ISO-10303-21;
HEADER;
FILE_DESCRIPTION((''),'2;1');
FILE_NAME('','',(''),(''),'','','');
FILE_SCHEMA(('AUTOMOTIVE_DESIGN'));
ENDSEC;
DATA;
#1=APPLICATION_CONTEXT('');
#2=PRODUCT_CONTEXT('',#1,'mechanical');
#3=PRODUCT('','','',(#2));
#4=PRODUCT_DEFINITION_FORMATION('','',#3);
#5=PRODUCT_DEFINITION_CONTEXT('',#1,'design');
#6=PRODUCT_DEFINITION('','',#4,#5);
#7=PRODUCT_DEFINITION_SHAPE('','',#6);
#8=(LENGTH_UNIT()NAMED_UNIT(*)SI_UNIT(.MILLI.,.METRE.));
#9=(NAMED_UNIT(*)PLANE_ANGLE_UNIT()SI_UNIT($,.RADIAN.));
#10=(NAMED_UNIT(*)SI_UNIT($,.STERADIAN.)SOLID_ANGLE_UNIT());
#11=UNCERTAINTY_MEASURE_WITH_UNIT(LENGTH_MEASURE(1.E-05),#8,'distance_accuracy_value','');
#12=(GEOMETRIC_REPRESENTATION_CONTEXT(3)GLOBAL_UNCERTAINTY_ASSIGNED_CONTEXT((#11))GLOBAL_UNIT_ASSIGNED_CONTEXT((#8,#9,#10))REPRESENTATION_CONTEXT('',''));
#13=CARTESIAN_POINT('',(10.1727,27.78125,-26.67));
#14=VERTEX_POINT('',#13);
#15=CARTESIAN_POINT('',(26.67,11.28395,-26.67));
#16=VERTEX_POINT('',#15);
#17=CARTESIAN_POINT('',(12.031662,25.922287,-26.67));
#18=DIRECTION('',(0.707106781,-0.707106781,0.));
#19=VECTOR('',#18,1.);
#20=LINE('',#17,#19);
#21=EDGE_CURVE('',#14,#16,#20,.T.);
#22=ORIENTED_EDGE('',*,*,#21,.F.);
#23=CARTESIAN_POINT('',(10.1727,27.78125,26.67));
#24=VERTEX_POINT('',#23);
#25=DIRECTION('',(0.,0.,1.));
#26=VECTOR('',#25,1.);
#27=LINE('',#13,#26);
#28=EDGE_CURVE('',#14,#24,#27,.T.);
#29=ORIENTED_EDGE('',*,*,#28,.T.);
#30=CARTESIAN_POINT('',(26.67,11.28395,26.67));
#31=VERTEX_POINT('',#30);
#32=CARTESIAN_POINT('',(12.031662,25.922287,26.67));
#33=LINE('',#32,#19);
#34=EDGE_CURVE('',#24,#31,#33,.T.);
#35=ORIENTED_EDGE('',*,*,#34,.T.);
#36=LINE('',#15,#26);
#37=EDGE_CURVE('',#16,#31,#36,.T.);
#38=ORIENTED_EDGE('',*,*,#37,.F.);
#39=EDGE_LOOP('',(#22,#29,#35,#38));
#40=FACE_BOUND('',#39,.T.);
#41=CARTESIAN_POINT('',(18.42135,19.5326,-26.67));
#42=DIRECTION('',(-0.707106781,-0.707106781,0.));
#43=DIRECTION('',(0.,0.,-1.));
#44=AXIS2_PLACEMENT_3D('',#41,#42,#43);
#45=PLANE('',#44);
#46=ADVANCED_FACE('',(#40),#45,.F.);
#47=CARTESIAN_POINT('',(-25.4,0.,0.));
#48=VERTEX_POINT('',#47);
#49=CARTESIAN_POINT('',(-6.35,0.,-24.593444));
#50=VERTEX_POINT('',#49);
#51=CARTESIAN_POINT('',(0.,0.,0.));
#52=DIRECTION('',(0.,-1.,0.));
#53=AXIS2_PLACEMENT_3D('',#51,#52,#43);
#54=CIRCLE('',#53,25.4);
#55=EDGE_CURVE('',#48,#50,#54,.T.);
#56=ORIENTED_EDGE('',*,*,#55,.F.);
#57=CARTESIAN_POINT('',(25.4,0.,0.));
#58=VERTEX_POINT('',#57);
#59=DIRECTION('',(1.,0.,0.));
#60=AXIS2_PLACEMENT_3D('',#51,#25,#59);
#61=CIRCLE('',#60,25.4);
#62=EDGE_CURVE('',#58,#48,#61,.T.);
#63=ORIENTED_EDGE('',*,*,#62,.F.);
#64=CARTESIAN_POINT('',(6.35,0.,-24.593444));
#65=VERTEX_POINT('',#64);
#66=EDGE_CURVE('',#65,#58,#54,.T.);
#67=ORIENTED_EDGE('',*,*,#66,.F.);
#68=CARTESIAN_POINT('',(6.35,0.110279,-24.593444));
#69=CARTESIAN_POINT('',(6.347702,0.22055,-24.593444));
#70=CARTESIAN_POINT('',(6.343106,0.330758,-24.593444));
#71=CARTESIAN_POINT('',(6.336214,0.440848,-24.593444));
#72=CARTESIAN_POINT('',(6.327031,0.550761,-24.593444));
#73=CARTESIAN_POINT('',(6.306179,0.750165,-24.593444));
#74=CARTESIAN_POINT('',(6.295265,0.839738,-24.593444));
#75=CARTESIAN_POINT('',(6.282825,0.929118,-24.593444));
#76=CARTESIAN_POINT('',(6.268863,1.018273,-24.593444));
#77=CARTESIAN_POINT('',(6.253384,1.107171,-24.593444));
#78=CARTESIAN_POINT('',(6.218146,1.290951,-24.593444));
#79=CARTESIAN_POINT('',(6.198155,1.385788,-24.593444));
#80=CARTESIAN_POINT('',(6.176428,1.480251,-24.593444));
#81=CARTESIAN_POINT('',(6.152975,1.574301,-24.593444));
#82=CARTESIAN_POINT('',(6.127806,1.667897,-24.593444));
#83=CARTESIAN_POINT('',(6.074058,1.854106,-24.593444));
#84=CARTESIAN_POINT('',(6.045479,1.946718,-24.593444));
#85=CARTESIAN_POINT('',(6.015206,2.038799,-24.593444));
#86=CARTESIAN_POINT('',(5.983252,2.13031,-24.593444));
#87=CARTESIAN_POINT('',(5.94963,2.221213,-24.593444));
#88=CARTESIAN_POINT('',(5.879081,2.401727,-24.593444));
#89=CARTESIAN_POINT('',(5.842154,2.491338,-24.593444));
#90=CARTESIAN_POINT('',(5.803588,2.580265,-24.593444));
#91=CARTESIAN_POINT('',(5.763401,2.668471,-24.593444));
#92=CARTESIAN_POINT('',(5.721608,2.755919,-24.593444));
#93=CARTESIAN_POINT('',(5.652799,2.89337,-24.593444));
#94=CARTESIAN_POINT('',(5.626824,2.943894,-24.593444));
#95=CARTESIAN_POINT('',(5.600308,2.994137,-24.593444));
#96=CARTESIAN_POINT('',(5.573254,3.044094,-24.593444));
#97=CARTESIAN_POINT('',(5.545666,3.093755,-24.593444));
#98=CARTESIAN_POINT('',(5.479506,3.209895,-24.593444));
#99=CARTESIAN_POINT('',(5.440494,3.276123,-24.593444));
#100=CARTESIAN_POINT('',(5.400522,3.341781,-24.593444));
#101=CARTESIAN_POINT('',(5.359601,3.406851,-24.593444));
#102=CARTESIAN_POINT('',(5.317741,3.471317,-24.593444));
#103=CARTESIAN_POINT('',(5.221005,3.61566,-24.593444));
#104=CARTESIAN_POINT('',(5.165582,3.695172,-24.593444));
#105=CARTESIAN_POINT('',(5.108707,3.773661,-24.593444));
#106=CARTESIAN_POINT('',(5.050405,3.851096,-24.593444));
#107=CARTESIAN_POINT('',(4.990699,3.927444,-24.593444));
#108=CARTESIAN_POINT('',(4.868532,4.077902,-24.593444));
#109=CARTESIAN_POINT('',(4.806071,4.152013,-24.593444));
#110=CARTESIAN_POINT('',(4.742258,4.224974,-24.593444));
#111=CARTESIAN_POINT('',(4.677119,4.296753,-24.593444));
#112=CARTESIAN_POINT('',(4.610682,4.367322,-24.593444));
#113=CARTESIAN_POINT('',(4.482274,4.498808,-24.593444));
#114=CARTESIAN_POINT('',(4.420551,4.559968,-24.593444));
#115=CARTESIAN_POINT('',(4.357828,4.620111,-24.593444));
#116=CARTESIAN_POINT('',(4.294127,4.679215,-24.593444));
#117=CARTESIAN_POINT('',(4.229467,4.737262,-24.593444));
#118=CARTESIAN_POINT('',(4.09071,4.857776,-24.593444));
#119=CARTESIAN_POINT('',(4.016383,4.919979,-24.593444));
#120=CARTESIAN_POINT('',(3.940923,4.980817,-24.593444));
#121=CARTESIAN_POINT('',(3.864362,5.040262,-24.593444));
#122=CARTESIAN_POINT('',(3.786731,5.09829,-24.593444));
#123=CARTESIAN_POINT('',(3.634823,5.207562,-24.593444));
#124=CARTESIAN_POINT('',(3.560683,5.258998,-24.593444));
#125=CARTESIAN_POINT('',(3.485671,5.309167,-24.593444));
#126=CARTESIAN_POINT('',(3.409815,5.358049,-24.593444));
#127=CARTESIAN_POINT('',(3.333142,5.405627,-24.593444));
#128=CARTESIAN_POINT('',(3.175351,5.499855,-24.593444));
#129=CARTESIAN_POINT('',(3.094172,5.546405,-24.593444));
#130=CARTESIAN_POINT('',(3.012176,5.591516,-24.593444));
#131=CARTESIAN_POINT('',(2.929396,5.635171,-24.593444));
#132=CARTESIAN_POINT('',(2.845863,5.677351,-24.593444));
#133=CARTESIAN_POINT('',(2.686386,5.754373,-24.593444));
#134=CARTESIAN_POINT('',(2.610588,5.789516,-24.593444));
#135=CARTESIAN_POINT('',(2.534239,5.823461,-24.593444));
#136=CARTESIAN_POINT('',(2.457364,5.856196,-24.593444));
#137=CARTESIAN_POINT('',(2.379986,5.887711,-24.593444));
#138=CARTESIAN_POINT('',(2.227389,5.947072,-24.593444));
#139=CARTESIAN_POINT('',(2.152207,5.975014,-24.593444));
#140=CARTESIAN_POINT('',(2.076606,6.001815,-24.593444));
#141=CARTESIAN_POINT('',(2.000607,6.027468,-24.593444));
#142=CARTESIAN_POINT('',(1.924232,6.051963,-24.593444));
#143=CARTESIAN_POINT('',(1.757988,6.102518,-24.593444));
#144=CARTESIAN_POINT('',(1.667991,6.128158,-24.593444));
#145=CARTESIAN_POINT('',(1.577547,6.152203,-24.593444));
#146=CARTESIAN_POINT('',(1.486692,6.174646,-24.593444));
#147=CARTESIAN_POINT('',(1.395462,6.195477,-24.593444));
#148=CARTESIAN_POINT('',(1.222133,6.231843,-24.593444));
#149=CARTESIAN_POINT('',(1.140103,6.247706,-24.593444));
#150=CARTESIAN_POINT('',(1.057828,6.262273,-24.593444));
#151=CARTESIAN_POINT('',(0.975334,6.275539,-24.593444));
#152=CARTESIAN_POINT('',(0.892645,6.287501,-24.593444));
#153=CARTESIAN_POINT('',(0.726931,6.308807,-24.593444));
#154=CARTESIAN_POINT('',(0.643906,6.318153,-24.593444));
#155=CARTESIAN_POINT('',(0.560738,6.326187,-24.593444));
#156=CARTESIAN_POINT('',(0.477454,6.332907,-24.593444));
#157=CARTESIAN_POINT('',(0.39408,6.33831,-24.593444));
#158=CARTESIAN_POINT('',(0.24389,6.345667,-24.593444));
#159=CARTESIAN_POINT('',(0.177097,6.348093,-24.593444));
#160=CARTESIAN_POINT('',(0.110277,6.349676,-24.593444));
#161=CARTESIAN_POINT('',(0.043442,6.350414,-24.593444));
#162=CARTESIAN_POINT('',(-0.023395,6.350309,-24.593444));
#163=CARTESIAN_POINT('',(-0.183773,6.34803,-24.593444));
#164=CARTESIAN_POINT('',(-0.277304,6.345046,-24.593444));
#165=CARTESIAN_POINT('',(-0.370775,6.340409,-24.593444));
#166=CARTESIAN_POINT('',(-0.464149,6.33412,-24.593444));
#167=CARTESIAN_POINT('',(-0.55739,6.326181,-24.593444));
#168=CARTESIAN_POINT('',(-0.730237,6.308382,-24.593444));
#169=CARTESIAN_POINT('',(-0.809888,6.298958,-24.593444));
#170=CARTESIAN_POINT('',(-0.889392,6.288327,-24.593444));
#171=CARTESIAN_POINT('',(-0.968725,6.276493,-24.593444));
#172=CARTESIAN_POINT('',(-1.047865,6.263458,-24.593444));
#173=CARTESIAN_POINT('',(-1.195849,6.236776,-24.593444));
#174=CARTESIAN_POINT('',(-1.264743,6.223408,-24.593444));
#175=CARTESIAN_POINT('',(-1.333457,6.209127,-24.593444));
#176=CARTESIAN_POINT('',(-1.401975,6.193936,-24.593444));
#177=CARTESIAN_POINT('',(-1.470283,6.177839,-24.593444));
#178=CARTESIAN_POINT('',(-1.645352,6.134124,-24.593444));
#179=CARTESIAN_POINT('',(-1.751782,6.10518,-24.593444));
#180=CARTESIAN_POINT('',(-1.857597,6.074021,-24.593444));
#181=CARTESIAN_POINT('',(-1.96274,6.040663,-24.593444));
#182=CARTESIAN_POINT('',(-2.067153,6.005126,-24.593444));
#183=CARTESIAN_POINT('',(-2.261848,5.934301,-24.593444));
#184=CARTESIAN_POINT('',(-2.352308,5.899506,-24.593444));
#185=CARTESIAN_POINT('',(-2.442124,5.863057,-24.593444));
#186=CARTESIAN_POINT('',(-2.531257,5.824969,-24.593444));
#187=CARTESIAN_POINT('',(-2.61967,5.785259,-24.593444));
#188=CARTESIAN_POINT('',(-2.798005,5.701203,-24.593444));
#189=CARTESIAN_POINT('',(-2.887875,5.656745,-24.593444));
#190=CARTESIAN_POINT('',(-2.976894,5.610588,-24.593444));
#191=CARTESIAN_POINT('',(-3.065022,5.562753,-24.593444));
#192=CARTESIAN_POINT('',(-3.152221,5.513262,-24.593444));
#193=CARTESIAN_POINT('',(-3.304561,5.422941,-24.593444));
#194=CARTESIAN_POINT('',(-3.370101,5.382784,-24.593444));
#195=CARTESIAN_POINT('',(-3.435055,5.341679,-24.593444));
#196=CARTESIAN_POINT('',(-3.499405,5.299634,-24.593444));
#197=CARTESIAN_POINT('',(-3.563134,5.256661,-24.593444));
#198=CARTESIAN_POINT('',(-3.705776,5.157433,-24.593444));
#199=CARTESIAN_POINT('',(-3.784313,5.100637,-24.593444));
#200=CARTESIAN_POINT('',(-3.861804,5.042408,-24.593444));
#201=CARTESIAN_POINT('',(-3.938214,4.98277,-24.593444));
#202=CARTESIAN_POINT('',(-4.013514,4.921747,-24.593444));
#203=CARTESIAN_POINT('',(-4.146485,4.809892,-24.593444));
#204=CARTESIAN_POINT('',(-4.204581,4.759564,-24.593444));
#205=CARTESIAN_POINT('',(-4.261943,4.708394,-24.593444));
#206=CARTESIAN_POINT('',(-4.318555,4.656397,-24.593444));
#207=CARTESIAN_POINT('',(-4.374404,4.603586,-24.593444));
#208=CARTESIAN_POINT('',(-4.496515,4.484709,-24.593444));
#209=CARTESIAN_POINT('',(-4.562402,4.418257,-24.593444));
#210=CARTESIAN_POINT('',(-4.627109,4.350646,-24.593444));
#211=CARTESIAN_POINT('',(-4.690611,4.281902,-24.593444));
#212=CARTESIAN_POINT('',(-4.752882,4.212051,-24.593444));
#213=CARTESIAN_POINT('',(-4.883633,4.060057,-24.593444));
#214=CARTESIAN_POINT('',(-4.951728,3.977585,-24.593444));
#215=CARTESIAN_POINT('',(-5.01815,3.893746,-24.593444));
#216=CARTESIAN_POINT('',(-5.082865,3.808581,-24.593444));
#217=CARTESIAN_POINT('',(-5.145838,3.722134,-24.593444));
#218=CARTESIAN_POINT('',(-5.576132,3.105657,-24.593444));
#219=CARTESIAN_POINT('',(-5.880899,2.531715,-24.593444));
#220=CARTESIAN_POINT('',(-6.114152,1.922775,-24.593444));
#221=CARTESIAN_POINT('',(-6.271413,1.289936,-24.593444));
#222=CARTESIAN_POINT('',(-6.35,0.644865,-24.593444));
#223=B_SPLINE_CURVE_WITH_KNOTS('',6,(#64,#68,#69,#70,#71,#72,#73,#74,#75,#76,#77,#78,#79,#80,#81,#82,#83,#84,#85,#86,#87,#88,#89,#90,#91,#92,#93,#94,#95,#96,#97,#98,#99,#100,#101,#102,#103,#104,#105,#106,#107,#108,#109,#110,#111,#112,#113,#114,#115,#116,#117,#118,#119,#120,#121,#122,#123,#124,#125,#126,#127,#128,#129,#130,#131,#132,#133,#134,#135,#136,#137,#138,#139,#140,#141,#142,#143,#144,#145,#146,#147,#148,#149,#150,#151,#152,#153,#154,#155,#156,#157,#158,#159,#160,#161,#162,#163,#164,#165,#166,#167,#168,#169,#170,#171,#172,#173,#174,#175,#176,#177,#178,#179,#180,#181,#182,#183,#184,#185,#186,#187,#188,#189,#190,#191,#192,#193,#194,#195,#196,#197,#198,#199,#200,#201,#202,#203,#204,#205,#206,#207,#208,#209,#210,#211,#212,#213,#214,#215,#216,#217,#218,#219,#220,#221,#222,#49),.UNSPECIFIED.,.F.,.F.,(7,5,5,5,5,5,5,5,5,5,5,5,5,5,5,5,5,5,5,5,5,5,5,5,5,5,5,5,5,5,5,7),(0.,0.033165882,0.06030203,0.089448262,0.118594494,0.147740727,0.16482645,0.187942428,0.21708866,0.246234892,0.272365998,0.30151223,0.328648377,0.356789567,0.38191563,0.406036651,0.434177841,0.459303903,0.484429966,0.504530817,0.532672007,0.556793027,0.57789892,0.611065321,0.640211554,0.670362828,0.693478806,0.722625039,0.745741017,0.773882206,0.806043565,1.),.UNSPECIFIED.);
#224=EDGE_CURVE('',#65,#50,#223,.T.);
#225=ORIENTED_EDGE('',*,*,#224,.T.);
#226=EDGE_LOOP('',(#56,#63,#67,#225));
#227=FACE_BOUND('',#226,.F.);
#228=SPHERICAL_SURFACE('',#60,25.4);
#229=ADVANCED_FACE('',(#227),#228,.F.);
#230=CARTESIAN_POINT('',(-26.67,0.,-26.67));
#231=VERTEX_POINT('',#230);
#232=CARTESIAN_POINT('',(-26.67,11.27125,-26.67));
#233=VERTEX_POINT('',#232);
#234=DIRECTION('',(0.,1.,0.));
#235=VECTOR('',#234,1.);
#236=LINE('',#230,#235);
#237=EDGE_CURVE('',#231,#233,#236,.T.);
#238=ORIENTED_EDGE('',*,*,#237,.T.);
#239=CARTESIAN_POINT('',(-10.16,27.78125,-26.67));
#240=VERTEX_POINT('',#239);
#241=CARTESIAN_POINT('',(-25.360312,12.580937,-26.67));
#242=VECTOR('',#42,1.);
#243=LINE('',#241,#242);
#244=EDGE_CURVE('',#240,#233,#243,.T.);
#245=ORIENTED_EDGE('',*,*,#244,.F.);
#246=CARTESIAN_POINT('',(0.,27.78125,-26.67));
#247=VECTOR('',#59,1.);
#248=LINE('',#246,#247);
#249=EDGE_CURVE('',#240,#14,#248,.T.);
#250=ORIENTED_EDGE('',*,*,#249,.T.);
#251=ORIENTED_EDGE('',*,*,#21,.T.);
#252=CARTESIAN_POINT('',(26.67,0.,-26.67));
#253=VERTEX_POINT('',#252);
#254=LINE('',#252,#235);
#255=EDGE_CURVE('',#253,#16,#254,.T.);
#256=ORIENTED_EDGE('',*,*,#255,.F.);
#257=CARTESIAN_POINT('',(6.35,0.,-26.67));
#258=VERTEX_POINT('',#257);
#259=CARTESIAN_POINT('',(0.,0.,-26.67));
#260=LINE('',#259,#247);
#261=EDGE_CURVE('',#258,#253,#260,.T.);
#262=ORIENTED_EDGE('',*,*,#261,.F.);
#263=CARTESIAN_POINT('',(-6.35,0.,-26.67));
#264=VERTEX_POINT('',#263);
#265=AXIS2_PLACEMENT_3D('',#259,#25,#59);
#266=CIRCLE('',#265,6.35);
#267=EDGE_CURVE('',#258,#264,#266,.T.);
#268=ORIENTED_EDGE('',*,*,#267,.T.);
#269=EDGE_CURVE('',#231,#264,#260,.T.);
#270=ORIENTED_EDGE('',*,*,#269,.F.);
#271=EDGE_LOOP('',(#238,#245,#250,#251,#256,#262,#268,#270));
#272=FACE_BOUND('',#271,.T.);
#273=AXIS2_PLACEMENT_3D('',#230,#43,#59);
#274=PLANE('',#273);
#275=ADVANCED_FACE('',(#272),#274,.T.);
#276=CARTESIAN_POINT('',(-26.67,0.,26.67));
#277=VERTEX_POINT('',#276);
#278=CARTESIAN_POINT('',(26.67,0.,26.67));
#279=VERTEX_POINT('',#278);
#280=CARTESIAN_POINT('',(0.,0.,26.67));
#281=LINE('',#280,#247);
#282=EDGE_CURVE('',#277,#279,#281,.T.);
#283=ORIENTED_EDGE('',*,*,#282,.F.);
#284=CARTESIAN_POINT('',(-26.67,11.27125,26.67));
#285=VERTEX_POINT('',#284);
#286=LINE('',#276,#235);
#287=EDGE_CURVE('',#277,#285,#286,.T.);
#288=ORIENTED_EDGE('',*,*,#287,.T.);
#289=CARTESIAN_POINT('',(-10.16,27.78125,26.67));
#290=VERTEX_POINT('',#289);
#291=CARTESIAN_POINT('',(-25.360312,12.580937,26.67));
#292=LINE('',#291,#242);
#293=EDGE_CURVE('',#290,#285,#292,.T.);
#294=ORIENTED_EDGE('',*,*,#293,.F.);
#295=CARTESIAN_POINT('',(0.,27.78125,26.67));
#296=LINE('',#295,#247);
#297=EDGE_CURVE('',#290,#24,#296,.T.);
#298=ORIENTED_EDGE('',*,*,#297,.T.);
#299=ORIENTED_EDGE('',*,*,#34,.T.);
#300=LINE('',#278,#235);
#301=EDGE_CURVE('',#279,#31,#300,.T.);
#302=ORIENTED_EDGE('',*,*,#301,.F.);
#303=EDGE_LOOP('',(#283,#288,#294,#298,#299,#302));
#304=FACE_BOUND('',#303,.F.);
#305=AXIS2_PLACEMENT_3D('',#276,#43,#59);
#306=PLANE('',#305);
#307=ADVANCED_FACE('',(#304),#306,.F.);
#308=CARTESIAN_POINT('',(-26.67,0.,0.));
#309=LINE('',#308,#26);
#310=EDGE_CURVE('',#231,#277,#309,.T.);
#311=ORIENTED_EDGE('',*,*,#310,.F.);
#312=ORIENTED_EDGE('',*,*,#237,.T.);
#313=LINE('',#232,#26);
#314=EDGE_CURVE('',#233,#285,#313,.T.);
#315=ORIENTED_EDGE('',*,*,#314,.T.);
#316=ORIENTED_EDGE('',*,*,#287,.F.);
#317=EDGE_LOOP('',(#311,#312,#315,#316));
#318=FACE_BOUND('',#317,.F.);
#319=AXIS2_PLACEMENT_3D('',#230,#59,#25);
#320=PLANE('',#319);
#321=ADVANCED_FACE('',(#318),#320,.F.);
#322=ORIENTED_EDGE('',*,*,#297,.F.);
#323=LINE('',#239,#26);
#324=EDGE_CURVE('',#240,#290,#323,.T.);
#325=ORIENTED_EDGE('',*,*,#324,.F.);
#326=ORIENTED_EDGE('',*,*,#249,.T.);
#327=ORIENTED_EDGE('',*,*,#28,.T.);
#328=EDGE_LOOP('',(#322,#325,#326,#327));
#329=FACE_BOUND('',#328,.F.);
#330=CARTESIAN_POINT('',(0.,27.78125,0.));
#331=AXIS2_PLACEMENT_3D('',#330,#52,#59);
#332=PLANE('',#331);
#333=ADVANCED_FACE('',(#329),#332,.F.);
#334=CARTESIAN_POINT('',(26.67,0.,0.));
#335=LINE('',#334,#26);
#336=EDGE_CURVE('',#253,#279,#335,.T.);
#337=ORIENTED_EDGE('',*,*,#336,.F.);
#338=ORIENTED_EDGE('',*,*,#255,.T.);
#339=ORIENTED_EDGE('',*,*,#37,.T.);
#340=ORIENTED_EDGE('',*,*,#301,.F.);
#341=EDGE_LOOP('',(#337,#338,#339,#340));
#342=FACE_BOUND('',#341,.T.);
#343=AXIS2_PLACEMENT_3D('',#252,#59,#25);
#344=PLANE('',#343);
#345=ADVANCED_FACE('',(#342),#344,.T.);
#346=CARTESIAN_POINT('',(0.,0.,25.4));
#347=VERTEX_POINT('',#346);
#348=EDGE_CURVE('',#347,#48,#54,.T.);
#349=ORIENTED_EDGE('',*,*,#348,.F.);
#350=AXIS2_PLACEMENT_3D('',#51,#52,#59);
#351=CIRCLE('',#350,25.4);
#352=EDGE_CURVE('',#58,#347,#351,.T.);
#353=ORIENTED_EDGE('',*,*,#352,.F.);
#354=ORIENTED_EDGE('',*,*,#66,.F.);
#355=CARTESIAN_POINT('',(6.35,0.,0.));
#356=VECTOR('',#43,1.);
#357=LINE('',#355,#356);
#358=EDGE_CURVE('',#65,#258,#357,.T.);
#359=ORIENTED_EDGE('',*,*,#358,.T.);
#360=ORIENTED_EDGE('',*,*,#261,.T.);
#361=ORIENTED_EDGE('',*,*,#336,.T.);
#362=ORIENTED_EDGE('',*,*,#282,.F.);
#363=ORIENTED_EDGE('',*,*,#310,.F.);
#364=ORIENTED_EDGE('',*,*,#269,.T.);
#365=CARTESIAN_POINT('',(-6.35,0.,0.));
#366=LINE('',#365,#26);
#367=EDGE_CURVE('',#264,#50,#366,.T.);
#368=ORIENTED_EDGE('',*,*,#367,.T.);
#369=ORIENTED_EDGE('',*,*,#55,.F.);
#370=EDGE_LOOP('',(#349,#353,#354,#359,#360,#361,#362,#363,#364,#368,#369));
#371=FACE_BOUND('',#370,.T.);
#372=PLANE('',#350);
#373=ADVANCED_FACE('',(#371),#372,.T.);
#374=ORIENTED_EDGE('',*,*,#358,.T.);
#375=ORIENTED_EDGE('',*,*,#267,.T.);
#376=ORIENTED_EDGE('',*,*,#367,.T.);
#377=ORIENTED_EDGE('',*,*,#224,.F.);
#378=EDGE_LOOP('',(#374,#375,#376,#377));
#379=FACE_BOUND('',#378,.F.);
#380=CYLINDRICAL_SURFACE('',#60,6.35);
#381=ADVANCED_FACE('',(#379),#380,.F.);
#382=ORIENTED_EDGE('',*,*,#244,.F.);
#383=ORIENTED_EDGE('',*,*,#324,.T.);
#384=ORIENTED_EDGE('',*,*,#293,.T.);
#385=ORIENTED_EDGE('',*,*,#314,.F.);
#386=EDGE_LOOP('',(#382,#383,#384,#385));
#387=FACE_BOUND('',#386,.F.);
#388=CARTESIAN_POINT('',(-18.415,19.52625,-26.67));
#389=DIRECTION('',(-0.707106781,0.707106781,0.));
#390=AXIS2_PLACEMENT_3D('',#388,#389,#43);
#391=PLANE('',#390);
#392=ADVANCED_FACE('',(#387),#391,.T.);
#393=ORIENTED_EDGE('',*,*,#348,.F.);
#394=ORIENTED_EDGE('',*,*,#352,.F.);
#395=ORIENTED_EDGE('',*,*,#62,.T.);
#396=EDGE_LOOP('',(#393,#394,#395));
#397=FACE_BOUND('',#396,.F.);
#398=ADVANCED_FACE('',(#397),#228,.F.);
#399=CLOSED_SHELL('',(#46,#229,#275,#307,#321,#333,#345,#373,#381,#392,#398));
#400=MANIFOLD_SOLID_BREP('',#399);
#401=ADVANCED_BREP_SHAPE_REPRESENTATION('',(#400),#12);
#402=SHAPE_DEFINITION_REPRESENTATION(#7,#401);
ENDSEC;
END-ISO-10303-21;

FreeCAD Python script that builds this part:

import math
import FreeCAD as App
import Part
import Sketcher
from FreeCAD import Vector
Q = App.Units.Quantity


def edges_at(feature, points):
    """Names of the edges that pass closest to the given points."""
    edges = feature.Shape.Edges
    near = lambda p: min(range(len(edges)), key=lambda i: edges[i].distToShape(Part.Vertex(*p))[0])
    return sorted({f"Edge{near(p) + 1}" for p in points})

doc = App.newDocument("Part")
params = doc.addObject("Spreadsheet::Sheet", "Params")
for row, (alias, value) in enumerate([
    ("sketch1_width", "2.1 in"),
    ("pad1_length", "1.09375 in"),
    ("sketch2_radius", "1 in"),
    ("groove_angle", "360 deg"),
    ("sketch3_diameter", "0.5 in"),
    ("pocket1_length", "1.5 in"),
    ("chamfer_size", "0.6495 in"),
    ("chamfer2_size", "0.65 in"),
], start=1):
    params.set(f"A{row}", alias)
    params.set(f"B{row}", "=" + value)
    params.setAlias(f"B{row}", alias)

body = doc.addObject("PartDesign::Body", "Body")

sketch1 = doc.addObject("Sketcher::SketchObject", "Sketch")
body.addObject(sketch1)
sketch1.AttachmentSupport = (doc.XZ_Plane, [""])
sketch1.MapMode = "FlatFace"
sketch1.addGeometry([
    Part.LineSegment(Vector(-27, 27, 0), Vector(-27, -27, 0)),
    Part.LineSegment(Vector(-27, -27, 0), Vector(27, -27, 0)),
    Part.LineSegment(Vector(27, -27, 0), Vector(27, 27, 0)),
    Part.LineSegment(Vector(27, 27, 0), Vector(-27, 27, 0)),
], False)
sketch1.addConstraint([
    Sketcher.Constraint("Coincident", 0, 2, 1, 1),
    Sketcher.Constraint("Coincident", 1, 2, 2, 1),
    Sketcher.Constraint("Coincident", 2, 2, 3, 1),
    Sketcher.Constraint("Coincident", 3, 2, 0, 1),
    Sketcher.Constraint("Vertical", 0),
    Sketcher.Constraint("Horizontal", 1),
    Sketcher.Constraint("Vertical", 2),
    Sketcher.Constraint("Horizontal", 3),
    Sketcher.Constraint("Symmetric", 0, 2, 2, 2, -1, 1),
    Sketcher.Constraint("Equal", 3, 0),
    Sketcher.Constraint("DistanceX", 1, 1, 1, 2, Q("2.1 in")),
])
sketch1.setExpression("Constraints[10]", "Params.sketch1_width")
pad1 = doc.addObject("PartDesign::Pad", "Pad")
body.addObject(pad1)
pad1.Profile = sketch1
pad1.setExpression("Length", "Params.pad1_length")
pad1.Reversed = True

sketch2 = doc.addObject("Sketcher::SketchObject", "Sketch001")
body.addObject(sketch2)
sketch2.AttachmentSupport = (doc.XZ_Plane, [""])
sketch2.MapMode = "FlatFace"
sketch2.addGeometry([
    Part.ArcOfCircle(Part.Circle(Vector(0, 0, 0), Vector(0, 0, 1), 25), math.radians(-90), math.radians(0)),
    Part.ArcOfCircle(Part.Circle(Vector(0, 0, 0), Vector(0, 0, 1), 25), math.radians(0), math.radians(90)),
    Part.LineSegment(Vector(0, 25, 0), Vector(0, -25, 0)),
], False)
sketch2.addConstraint([
    Sketcher.Constraint("Tangent", 0, 2, 1, 1),
    Sketcher.Constraint("Coincident", 1, 2, 2, 1),
    Sketcher.Constraint("Coincident", 2, 2, 0, 1),
    Sketcher.Constraint("Vertical", 2),
    Sketcher.Constraint("Coincident", 0, 3, -1, 1),
    Sketcher.Constraint("Equal", 0, 1),
    Sketcher.Constraint("PointOnObject", 0, 2, -1),
    Sketcher.Constraint("PointOnObject", 1, 2, -2),
    Sketcher.Constraint("Radius", 0, Q("1 in")),
])
sketch2.setExpression("Constraints[8]", "Params.sketch2_radius")
groove = doc.addObject("PartDesign::Groove", "Groove")
body.addObject(groove)
groove.Profile = sketch2
groove.ReferenceAxis = (sketch2, ["V_Axis"])
groove.setExpression("Angle", "Params.groove_angle")

sketch3 = doc.addObject("Sketcher::SketchObject", "Sketch002")
body.addObject(sketch3)
sketch3.AttachmentSupport = (doc.XY_Plane, [""])
sketch3.MapMode = "FlatFace"
sketch3.addGeometry(Part.Circle(Vector(0, 0, 0), Vector(0, 0, 1), 6), False)
sketch3.addConstraint([
    Sketcher.Constraint("Coincident", 0, 3, -1, 1),
    Sketcher.Constraint("Diameter", 0, Q("0.5 in")),
])
sketch3.setExpression("Constraints[1]", "Params.sketch3_diameter")
pocket1 = doc.addObject("PartDesign::Pocket", "Pocket")
body.addObject(pocket1)
pocket1.Profile = sketch3
pocket1.setExpression("Length", "Params.pocket1_length")
doc.recompute()

chamfer = doc.addObject("PartDesign::Chamfer", "Chamfer")
body.addObject(chamfer)
chamfer.Base = (pocket1, edges_at(pocket1, [(26.67, 27.781, 0)]))
chamfer.setExpression("Size", "Params.chamfer_size")
doc.recompute()

chamfer2 = doc.addObject("PartDesign::Chamfer", "Chamfer001")
body.addObject(chamfer2)
chamfer2.Base = (chamfer, edges_at(chamfer, [(-26.67, 27.781, 0)]))
chamfer2.setExpression("Size", "Params.chamfer2_size")

doc.recompute()
